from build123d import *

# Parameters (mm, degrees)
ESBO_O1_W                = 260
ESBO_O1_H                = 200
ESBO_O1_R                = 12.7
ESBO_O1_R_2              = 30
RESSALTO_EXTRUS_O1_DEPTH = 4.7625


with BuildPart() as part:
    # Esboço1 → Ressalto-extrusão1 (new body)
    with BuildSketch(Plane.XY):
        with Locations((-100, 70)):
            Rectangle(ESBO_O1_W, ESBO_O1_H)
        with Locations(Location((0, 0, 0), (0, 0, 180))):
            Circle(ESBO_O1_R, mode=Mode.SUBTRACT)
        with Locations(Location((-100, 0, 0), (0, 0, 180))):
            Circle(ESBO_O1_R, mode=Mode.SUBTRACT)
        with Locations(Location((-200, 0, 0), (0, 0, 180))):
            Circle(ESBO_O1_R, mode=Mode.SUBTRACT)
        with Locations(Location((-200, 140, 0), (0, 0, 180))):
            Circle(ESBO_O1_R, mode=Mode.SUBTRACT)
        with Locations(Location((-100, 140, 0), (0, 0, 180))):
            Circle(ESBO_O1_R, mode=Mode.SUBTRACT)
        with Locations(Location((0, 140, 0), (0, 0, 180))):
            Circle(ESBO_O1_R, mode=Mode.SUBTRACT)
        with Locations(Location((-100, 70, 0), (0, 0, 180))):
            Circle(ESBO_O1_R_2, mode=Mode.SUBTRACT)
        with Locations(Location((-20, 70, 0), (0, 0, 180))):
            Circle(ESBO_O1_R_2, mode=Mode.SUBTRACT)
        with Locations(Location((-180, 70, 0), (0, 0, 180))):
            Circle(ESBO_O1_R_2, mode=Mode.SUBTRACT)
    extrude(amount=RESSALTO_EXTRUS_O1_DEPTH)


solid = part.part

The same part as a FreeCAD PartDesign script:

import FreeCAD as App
import Part
import Sketcher


def add_polygon(sketch, points):
    """Adds a closed chain of lines whose ends are joined by coincident constraints."""
    first, n = sketch.GeometryCount, len(points)
    for a, b in zip(points, points[1:] + points[:1]):
        sketch.addGeometry(Part.LineSegment(App.Vector(*a, 0), App.Vector(*b, 0)), False)
    for i in range(n):
        sketch.addConstraint(Sketcher.Constraint("Coincident", first + i, 2, first + (i + 1) % n, 1))

doc = App.newDocument("Part")
body = doc.addObject("PartDesign::Body", "Body")

# Sketch on XY plane
sketch1 = body.newObject("Sketcher::SketchObject", "Sketch")
sketch1.AttachmentSupport = (doc.getObject("XY_Plane"), [""])
sketch1.MapMode = "FlatFace"
add_polygon(sketch1, [(-230, 170), (-230, -30), (30, -30), (30, 170)])  # lines 0-3
sketch1.addGeometry(Part.Circle(App.Vector(-200, 0, 0), App.Vector(0, 0, 1), 13), False)  # 4
sketch1.addGeometry(Part.Circle(App.Vector(-100, 0, 0), App.Vector(0, 0, 1), 13), False)  # 5
sketch1.addGeometry(Part.Circle(App.Vector(0, 0, 0), App.Vector(0, 0, 1), 13), False)  # 6
sketch1.addGeometry(Part.Circle(App.Vector(-180, 70, 0), App.Vector(0, 0, 1), 30), False)  # 7
sketch1.addGeometry(Part.Circle(App.Vector(-200, 140, 0), App.Vector(0, 0, 1), 13), False)  # 8
sketch1.addGeometry(Part.Circle(App.Vector(-100, 70, 0), App.Vector(0, 0, 1), 30), False)  # 9
sketch1.addGeometry(Part.Circle(App.Vector(-20, 70, 0), App.Vector(0, 0, 1), 30), False)  # 10
sketch1.addGeometry(Part.Circle(App.Vector(-100, 140, 0), App.Vector(0, 0, 1), 13), False)  # 11
sketch1.addGeometry(Part.Circle(App.Vector(0, 140, 0), App.Vector(0, 0, 1), 13), False)  # 12
sketch1.addConstraint([
    Sketcher.Constraint("Vertical", 0),
    Sketcher.Constraint("Horizontal", 1),
    Sketcher.Constraint("Vertical", 2),
    Sketcher.Constraint("Horizontal", 3),
    Sketcher.Constraint("Coincident", 6, 3, -1, 1),
    Sketcher.Constraint("Equal", 4, 5),
    Sketcher.Constraint("Equal", 5, 6),
    Sketcher.Constraint("Equal", 6, 8),
    Sketcher.Constraint("Equal", 7, 9),
    Sketcher.Constraint("Equal", 9, 10),
    Sketcher.Constraint("Equal", 8, 11),
    Sketcher.Constraint("Equal", 11, 12),
    Sketcher.Constraint("PointOnObject", 4, 3, -1),
    Sketcher.Constraint("PointOnObject", 5, 3, -1),
    Sketcher.Constraint("PointOnObject", 12, 3, -2),
    Sketcher.Constraint("Horizontal", 7, 3, 9, 3),
    Sketcher.Constraint("Horizontal", 9, 3, 10, 3),
    Sketcher.Constraint("Horizontal", 8, 3, 11, 3),
    Sketcher.Constraint("Horizontal", 11, 3, 12, 3),
    Sketcher.Constraint("Vertical", 4, 3, 8, 3),
    Sketcher.Constraint("Vertical", 5, 3, 9, 3),
    Sketcher.Constraint("Vertical", 9, 3, 11, 3),
    Sketcher.Constraint("Diameter", 7, 60.0),
    Sketcher.Constraint("Diameter", 4, 25.4),
    Sketcher.Constraint("DistanceX", 1, 1, 1, 2, 260.0),
    Sketcher.Constraint("DistanceY", 0, 2, 0, 1, 200.0),
    Sketcher.Constraint("DistanceX", 4, 3, -1, 1, 200.0),
    Sketcher.Constraint("DistanceX", 5, 3, -1, 1, 100.0),
    Sketcher.Constraint("DistanceX", 7, 3, -1, 1, 180.0),
    Sketcher.Constraint("DistanceY", -1, 1, 7, 3, 70.0),
    Sketcher.Constraint("DistanceY", -1, 1, 8, 3, 140.0),
    Sketcher.Constraint("DistanceX", 10, 3, -1, 1, 20.0),
    Sketcher.Constraint("DistanceX", 0, 2, -1, 1, 230.0),
    Sketcher.Constraint("DistanceY", 0, 2, -1, 1, 30.0),
])
pad1 = body.newObject("PartDesign::Pad", "Pad")
pad1.Profile = sketch1
pad1.Length = 4.7625

doc.recompute()
